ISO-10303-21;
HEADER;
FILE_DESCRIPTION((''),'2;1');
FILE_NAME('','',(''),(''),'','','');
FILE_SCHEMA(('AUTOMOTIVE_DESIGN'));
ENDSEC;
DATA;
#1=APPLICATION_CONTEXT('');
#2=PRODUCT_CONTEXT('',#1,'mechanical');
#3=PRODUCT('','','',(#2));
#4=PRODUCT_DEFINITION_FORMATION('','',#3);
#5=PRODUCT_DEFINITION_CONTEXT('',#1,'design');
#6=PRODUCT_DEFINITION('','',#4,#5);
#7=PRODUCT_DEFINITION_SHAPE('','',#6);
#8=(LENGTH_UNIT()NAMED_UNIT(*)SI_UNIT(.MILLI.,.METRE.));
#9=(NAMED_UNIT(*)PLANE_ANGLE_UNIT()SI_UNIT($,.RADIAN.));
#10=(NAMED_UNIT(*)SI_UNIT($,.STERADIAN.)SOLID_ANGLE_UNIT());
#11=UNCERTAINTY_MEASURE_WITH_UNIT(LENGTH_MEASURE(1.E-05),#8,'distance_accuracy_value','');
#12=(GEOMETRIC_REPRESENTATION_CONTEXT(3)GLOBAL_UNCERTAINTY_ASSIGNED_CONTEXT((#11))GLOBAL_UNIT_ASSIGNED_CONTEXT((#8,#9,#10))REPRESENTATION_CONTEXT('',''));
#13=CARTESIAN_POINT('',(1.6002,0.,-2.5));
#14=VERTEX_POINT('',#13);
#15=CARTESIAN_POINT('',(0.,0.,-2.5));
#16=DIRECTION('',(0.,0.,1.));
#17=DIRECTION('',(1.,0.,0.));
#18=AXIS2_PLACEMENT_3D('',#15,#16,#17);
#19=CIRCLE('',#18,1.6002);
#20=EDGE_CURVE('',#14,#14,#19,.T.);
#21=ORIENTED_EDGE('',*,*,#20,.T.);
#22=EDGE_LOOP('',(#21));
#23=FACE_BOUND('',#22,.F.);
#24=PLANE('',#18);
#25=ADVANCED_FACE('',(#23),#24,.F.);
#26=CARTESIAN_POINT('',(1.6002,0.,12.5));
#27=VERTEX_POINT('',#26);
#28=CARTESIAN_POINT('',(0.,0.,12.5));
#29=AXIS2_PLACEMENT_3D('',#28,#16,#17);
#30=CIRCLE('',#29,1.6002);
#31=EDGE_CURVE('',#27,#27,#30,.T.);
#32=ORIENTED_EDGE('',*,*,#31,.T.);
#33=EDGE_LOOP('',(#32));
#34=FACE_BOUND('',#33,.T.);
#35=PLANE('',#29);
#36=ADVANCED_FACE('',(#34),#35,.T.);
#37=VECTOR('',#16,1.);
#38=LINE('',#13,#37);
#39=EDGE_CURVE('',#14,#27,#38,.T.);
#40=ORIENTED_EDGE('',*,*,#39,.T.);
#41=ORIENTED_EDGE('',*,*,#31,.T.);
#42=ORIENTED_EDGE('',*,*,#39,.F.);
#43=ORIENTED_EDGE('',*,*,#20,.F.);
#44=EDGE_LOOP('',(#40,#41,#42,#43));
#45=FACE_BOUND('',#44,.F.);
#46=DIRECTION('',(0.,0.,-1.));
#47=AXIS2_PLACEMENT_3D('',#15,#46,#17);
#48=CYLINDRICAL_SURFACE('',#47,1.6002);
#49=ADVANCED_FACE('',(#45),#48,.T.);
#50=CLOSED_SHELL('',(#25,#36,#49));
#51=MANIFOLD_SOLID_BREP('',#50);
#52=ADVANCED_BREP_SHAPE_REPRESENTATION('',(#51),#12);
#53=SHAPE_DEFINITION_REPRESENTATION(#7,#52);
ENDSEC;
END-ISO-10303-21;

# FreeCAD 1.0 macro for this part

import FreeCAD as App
import Part
import Sketcher
from FreeCAD import Vector
Q = App.Units.Quantity

doc = App.newDocument("Part")
body = doc.addObject("PartDesign::Body", "Body")

sketch1 = doc.addObject("Sketcher::SketchObject", "Sketch")
body.addObject(sketch1)
sketch1.AttachmentSupport = (doc.XY_Plane, [""])
sketch1.MapMode = "FlatFace"
sketch1.AttachmentOffset = App.Placement(Vector(0, 0, -2.5), App.Rotation())
sketch1.addGeometry(Part.Circle(Vector(0, 0, 0), Vector(0, 0, 1), 1.6), False)
sketch1.addConstraint(Sketcher.Constraint("Coincident", 0, 3, -1, 1))
sketch1.addConstraint(Sketcher.Constraint("Diameter", 0, Q("3.2004 mm")))
pad1 = doc.addObject("PartDesign::Pad", "Pad")
body.addObject(pad1)
pad1.Profile = sketch1
pad1.Length = 15

doc.recompute()
